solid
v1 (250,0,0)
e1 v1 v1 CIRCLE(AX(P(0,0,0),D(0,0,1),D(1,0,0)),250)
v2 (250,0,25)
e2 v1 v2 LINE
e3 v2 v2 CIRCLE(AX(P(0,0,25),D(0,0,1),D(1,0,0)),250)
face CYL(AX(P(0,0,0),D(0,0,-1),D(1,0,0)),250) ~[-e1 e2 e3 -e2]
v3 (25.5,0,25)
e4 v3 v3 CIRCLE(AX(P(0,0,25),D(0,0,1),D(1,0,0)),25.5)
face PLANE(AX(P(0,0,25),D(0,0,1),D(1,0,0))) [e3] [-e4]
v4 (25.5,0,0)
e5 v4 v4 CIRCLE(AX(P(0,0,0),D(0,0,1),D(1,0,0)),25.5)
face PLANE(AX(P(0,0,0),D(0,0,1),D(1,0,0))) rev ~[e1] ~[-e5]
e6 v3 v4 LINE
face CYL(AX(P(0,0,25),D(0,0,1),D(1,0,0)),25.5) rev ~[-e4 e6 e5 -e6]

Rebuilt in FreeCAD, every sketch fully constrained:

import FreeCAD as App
import Part
import Sketcher
from FreeCAD import Vector
Q = App.Units.Quantity

doc = App.newDocument("Part")
params = doc.addObject("Spreadsheet::Sheet", "Params")
for row, (alias, value) in enumerate([
    ("sketch1_diameter", "500 mm"),
    ("pad1_length", "25 mm"),
    ("sketch2_diameter", "51 mm"),
], start=1):
    params.set(f"A{row}", alias)
    params.set(f"B{row}", "=" + value)
    params.setAlias(f"B{row}", alias)

body = doc.addObject("PartDesign::Body", "Body")

# Sketch on XY plane
sketch1 = body.newObject("Sketcher::SketchObject", "Sketch")
sketch1.AttachmentSupport = (doc.getObject("XY_Plane"), [""])
sketch1.MapMode = "FlatFace"
sketch1.addGeometry(Part.Circle(Vector(0, 0, 0), Vector(0, 0, 1), 250), False)
sketch1.addConstraint([
    Sketcher.Constraint("Coincident", 0, 3, -1, 1),
    Sketcher.Constraint("Diameter", 0, Q("500 mm")),
])
sketch1.setExpression("Constraints[1]", "Params.sketch1_diameter")
pad1 = body.newObject("PartDesign::Pad", "Pad")
pad1.Profile = sketch1
pad1.setExpression("Length", "Params.pad1_length")

# Sketch on XY plane
sketch2 = body.newObject("Sketcher::SketchObject", "Sketch001")
sketch2.AttachmentSupport = (doc.getObject("XY_Plane"), [""])
sketch2.MapMode = "FlatFace"
sketch2.AttachmentOffset = App.Placement(Vector(0, 0, 25), App.Rotation())
sketch2.addGeometry(Part.Circle(Vector(0, 0, 0), Vector(0, 0, 1), 25.5), False)
sketch2.addConstraint([
    Sketcher.Constraint("Coincident", 0, 3, -1, 1),
    Sketcher.Constraint("Diameter", 0, Q("51 mm")),
])
sketch2.setExpression("Constraints[1]", "Params.sketch2_diameter")
pocket1 = body.newObject("PartDesign::Pocket", "Pocket")
pocket1.Profile = sketch2
pocket1.Type = "ThroughAll"

doc.recompute()
